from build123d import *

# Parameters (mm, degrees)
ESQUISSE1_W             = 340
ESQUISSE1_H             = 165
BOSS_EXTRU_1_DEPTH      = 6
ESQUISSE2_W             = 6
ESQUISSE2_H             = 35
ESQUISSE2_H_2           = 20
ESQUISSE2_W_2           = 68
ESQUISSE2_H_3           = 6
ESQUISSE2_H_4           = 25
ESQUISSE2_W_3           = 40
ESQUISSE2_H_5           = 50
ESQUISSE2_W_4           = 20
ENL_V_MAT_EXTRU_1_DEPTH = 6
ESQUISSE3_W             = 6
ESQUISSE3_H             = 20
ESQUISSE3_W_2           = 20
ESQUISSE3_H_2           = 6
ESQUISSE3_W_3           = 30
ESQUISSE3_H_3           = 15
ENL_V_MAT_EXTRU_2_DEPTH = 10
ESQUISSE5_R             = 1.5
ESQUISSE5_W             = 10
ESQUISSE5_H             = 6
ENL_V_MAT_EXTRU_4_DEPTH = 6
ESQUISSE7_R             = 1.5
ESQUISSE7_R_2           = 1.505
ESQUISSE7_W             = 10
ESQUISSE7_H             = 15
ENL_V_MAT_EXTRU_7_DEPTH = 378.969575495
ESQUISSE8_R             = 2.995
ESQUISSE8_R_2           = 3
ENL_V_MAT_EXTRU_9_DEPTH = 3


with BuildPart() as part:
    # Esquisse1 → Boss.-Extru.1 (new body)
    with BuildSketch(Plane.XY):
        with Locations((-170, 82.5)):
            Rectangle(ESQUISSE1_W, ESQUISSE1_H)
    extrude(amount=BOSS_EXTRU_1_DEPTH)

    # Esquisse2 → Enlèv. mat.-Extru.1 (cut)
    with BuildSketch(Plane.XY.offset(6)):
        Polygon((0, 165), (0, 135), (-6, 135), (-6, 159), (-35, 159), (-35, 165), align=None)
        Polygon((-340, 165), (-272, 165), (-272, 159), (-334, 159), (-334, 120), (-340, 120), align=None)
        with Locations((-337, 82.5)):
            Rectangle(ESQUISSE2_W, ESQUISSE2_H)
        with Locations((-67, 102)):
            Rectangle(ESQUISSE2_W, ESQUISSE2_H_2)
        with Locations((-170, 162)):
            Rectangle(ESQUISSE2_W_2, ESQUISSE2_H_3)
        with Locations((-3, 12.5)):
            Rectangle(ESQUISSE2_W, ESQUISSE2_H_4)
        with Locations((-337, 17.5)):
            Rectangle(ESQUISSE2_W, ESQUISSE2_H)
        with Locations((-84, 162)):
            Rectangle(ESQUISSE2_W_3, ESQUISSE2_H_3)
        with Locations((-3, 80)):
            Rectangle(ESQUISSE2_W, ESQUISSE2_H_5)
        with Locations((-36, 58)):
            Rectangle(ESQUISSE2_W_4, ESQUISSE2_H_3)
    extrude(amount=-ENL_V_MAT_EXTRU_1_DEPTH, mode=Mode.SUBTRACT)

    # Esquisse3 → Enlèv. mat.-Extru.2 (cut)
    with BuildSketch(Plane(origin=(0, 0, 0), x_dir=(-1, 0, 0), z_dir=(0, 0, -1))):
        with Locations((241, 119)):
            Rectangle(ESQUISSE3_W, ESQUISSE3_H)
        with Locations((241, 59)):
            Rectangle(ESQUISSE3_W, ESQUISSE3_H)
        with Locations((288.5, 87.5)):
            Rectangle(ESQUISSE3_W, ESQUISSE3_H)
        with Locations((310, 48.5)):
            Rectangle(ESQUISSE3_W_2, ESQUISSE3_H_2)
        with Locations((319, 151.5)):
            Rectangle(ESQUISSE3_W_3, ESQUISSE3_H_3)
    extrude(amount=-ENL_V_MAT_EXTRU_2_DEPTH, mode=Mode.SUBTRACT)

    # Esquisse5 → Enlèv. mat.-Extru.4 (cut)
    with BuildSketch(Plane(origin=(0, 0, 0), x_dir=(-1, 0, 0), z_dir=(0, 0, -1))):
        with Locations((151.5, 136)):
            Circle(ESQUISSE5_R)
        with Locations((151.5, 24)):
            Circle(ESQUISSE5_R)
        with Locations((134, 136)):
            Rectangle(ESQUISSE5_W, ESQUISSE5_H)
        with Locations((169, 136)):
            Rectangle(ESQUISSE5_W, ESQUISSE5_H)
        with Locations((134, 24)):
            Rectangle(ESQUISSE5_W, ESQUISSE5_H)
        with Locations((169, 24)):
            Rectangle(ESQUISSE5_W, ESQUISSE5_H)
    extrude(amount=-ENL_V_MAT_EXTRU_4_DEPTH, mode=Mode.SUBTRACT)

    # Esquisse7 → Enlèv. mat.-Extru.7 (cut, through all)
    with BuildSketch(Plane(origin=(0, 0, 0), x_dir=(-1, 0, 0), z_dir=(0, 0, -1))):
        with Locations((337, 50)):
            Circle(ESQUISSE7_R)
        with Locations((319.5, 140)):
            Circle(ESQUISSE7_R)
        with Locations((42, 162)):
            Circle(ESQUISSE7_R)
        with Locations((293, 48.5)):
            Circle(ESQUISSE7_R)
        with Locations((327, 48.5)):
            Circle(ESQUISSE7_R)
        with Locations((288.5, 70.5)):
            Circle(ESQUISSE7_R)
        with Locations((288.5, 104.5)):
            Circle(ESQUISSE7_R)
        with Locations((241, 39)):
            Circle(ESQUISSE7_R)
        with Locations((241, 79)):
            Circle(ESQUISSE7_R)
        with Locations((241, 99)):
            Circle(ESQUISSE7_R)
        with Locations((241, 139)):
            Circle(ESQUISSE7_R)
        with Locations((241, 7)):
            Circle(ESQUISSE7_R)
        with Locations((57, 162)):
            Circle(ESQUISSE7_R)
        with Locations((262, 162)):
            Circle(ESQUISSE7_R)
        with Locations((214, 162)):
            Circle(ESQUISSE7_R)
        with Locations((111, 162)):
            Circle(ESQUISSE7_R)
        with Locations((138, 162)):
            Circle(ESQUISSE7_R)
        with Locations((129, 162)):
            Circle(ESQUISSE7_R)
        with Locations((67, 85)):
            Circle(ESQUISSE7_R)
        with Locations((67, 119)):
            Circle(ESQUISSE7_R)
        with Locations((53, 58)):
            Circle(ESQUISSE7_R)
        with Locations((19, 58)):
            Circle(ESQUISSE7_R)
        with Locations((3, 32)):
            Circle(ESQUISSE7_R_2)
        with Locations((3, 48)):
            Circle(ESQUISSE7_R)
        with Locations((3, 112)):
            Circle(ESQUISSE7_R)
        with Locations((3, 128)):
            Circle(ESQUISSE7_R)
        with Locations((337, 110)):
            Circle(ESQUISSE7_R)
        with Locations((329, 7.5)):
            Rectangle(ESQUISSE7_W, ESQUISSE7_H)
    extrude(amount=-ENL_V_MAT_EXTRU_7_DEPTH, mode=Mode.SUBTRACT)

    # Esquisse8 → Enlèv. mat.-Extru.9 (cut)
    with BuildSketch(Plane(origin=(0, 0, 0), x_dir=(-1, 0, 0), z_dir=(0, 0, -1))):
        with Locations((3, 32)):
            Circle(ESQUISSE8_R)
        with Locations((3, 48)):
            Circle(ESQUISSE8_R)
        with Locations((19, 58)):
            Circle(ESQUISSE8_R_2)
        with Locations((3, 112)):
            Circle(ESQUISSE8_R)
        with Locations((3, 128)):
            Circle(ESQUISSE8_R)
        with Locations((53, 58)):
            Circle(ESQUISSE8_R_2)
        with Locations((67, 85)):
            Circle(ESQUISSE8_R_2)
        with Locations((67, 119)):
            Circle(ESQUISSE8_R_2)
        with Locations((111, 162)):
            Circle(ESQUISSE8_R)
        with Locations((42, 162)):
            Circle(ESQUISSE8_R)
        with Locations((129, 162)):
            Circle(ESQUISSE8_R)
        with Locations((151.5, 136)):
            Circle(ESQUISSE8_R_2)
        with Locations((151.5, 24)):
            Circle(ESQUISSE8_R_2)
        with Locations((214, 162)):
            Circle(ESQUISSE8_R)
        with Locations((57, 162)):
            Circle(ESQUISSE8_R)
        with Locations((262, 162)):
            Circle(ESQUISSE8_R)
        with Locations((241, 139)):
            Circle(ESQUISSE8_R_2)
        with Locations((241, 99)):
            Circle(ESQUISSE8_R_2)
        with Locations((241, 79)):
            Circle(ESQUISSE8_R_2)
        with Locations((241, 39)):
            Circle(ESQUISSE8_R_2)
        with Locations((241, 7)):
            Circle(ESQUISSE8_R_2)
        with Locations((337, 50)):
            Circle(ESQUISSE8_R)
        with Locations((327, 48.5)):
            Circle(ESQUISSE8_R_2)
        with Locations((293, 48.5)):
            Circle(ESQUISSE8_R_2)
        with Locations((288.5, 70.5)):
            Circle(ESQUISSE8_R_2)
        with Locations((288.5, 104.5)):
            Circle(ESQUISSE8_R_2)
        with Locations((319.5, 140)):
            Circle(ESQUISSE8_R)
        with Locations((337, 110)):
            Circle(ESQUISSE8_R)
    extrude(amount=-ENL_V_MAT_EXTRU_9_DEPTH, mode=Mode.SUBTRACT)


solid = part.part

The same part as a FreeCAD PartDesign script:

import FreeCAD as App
import Part
import Sketcher
Q = App.Units.Quantity

doc = App.newDocument("Part")
body = doc.addObject("PartDesign::Body", "Body")

# Sketch on XY plane
sketch1 = doc.addObject("Sketcher::SketchObject", "Sketch")
body.addObject(sketch1)
sketch1.AttachmentSupport = (doc.XY_Plane, [""])
sketch1.MapMode = "FlatFace"
sketch1.addGeometry(Part.LineSegment(App.Vector(-340, 165, 0), App.Vector(-340, 0, 0)), False)
sketch1.addGeometry(Part.LineSegment(App.Vector(-340, 0, 0), App.Vector(0, 0, 0)), False)
sketch1.addGeometry(Part.LineSegment(App.Vector(0, 0, 0), App.Vector(0, 165, 0)), False)
sketch1.addGeometry(Part.LineSegment(App.Vector(0, 165, 0), App.Vector(-340, 165, 0)), False)
sketch1.addConstraint(Sketcher.Constraint("Coincident", 0, 2, 1, 1))
sketch1.addConstraint(Sketcher.Constraint("Coincident", 1, 2, 2, 1))
sketch1.addConstraint(Sketcher.Constraint("Coincident", 2, 2, 3, 1))
sketch1.addConstraint(Sketcher.Constraint("Coincident", 3, 2, 0, 1))
sketch1.addConstraint(Sketcher.Constraint("Vertical", 0))
sketch1.addConstraint(Sketcher.Constraint("Horizontal", 1))
sketch1.addConstraint(Sketcher.Constraint("Vertical", 2))
sketch1.addConstraint(Sketcher.Constraint("Horizontal", 3))
sketch1.addConstraint(Sketcher.Constraint("Coincident", 1, 2, -1, 1))
sketch1.addConstraint(Sketcher.Constraint("DistanceX", 1, 1, 1, 2, Q("340 mm")))
sketch1.addConstraint(Sketcher.Constraint("DistanceY", 0, 2, 0, 1, Q("165 mm")))
pad1 = doc.addObject("PartDesign::Pad", "Pad")
body.addObject(pad1)
pad1.Profile = sketch1
pad1.Length = 6

# Sketch on XY plane
sketch2 = doc.addObject("Sketcher::SketchObject", "Sketch001")
body.addObject(sketch2)
sketch2.AttachmentSupport = (doc.XY_Plane, [""])
sketch2.MapMode = "FlatFace"
sketch2.AttachmentOffset = App.Placement(App.Vector(0, 0, 6), App.Rotation())
sketch2.addGeometry(Part.LineSegment(App.Vector(0, 135, 0), App.Vector(0, 165, 0)), False)
sketch2.addGeometry(Part.LineSegment(App.Vector(0, 165, 0), App.Vector(-35, 165, 0)), False)
sketch2.addGeometry(Part.LineSegment(App.Vector(-35, 165, 0), App.Vector(-35, 159, 0)), False)
sketch2.addGeometry(Part.LineSegment(App.Vector(-35, 159, 0), App.Vector(-6, 159, 0)), False)
sketch2.addGeometry(Part.LineSegment(App.Vector(-6, 159, 0), App.Vector(-6, 135, 0)), False)
sketch2.addGeometry(Part.LineSegment(App.Vector(-6, 135, 0), App.Vector(0, 135, 0)), False)
sketch2.addGeometry(Part.LineSegment(App.Vector(-272, 165, 0), App.Vector(-340, 165, 0)), False)
sketch2.addGeometry(Part.LineSegment(App.Vector(-340, 165, 0), App.Vector(-340, 120, 0)), False)
sketch2.addGeometry(Part.LineSegment(App.Vector(-340, 120, 0), App.Vector(-334, 120, 0)), False)
sketch2.addGeometry(Part.LineSegment(App.Vector(-334, 120, 0), App.Vector(-334, 159, 0)), False)
sketch2.addGeometry(Part.LineSegment(App.Vector(-334, 159, 0), App.Vector(-272, 159, 0)), False)
sketch2.addGeometry(Part.LineSegment(App.Vector(-272, 159, 0), App.Vector(-272, 165, 0)), False)
sketch2.addGeometry(Part.LineSegment(App.Vector(-340, 100, 0), App.Vector(-340, 65, 0)), False)
sketch2.addGeometry(Part.LineSegment(App.Vector(-340, 65, 0), App.Vector(-334, 65, 0)), False)
sketch2.addGeometry(Part.LineSegment(App.Vector(-334, 65, 0), App.Vector(-334, 100, 0)), False)
sketch2.addGeometry(Part.LineSegment(App.Vector(-334, 100, 0), App.Vector(-340, 100, 0)), False)
sketch2.addGeometry(Part.LineSegment(App.Vector(-70, 112, 0), App.Vector(-70, 92, 0)), False)
sketch2.addGeometry(Part.LineSegment(App.Vector(-70, 92, 0), App.Vector(-64, 92, 0)), False)
sketch2.addGeometry(Part.LineSegment(App.Vector(-64, 92, 0), App.Vector(-64, 112, 0)), False)
sketch2.addGeometry(Part.LineSegment(App.Vector(-64, 112, 0), App.Vector(-70, 112, 0)), False)
sketch2.addGeometry(Part.LineSegment(App.Vector(-204, 165, 0), App.Vector(-204, 159, 0)), False)
sketch2.addGeometry(Part.LineSegment(App.Vector(-204, 159, 0), App.Vector(-136, 159, 0)), False)
sketch2.addGeometry(Part.LineSegment(App.Vector(-136, 159, 0), App.Vector(-136, 165, 0)), False)
sketch2.addGeometry(Part.LineSegment(App.Vector(-136, 165, 0), App.Vector(-204, 165, 0)), False)
sketch2.addGeometry(Part.LineSegment(App.Vector(-6, 25, 0), App.Vector(-6, 0, 0)), False)
sketch2.addGeometry(Part.LineSegment(App.Vector(-6, 0, 0), App.Vector(0, 0, 0)), False)
sketch2.addGeometry(Part.LineSegment(App.Vector(0, 0, 0), App.Vector(0, 25, 0)), False)
sketch2.addGeometry(Part.LineSegment(App.Vector(0, 25, 0), App.Vector(-6, 25, 0)), False)
sketch2.addGeometry(Part.LineSegment(App.Vector(-340, 35, 0), App.Vector(-340, 0, 0)), False)
sketch2.addGeometry(Part.LineSegment(App.Vector(-340, 0, 0), App.Vector(-334, 0, 0)), False)
sketch2.addGeometry(Part.LineSegment(App.Vector(-334, 0, 0), App.Vector(-334, 35, 0)), False)
sketch2.addGeometry(Part.LineSegment(App.Vector(-334, 35, 0), App.Vector(-340, 35, 0)), False)
sketch2.addGeometry(Part.LineSegment(App.Vector(-104, 165, 0), App.Vector(-104, 159, 0)), False)
sketch2.addGeometry(Part.LineSegment(App.Vector(-104, 159, 0), App.Vector(-64, 159, 0)), False)
sketch2.addGeometry(Part.LineSegment(App.Vector(-64, 159, 0), App.Vector(-64, 165, 0)), False)
sketch2.addGeometry(Part.LineSegment(App.Vector(-64, 165, 0), App.Vector(-104, 165, 0)), False)
sketch2.addGeometry(Part.LineSegment(App.Vector(-6, 105, 0), App.Vector(-6, 55, 0)), False)
sketch2.addGeometry(Part.LineSegment(App.Vector(-6, 55, 0), App.Vector(0, 55, 0)), False)
sketch2.addGeometry(Part.LineSegment(App.Vector(0, 55, 0), App.Vector(0, 105, 0)), False)
sketch2.addGeometry(Part.LineSegment(App.Vector(0, 105, 0), App.Vector(-6, 105, 0)), False)
sketch2.addGeometry(Part.LineSegment(App.Vector(-46, 61, 0), App.Vector(-46, 55, 0)), False)
sketch2.addGeometry(Part.LineSegment(App.Vector(-46, 55, 0), App.Vector(-26, 55, 0)), False)
sketch2.addGeometry(Part.LineSegment(App.Vector(-26, 55, 0), App.Vector(-26, 61, 0)), False)
sketch2.addGeometry(Part.LineSegment(App.Vector(-26, 61, 0), App.Vector(-46, 61, 0)), False)
sketch2.addConstraint(Sketcher.Constraint("Coincident", 0, 2, 1, 1))
sketch2.addConstraint(Sketcher.Constraint("Coincident", 1, 2, 2, 1))
sketch2.addConstraint(Sketcher.Constraint("Coincident", 2, 2, 3, 1))
sketch2.addConstraint(Sketcher.Constraint("Coincident", 3, 2, 4, 1))
sketch2.addConstraint(Sketcher.Constraint("Coincident", 4, 2, 5, 1))
sketch2.addConstraint(Sketcher.Constraint("Coincident", 5, 2, 0, 1))
sketch2.addConstraint(Sketcher.Constraint("Coincident", 6, 2, 7, 1))
sketch2.addConstraint(Sketcher.Constraint("Coincident", 7, 2, 8, 1))
sketch2.addConstraint(Sketcher.Constraint("Coincident", 8, 2, 9, 1))
sketch2.addConstraint(Sketcher.Constraint("Coincident", 9, 2, 10, 1))
sketch2.addConstraint(Sketcher.Constraint("Coincident", 10, 2, 11, 1))
sketch2.addConstraint(Sketcher.Constraint("Coincident", 11, 2, 6, 1))
sketch2.addConstraint(Sketcher.Constraint("Coincident", 12, 2, 13, 1))
sketch2.addConstraint(Sketcher.Constraint("Coincident", 13, 2, 14, 1))
sketch2.addConstraint(Sketcher.Constraint("Coincident", 14, 2, 15, 1))
sketch2.addConstraint(Sketcher.Constraint("Coincident", 15, 2, 12, 1))
sketch2.addConstraint(Sketcher.Constraint("Coincident", 16, 2, 17, 1))
sketch2.addConstraint(Sketcher.Constraint("Coincident", 17, 2, 18, 1))
sketch2.addConstraint(Sketcher.Constraint("Coincident", 18, 2, 19, 1))
sketch2.addConstraint(Sketcher.Constraint("Coincident", 19, 2, 16, 1))
sketch2.addConstraint(Sketcher.Constraint("Coincident", 20, 2, 21, 1))
sketch2.addConstraint(Sketcher.Constraint("Coincident", 21, 2, 22, 1))
sketch2.addConstraint(Sketcher.Constraint("Coincident", 22, 2, 23, 1))
sketch2.addConstraint(Sketcher.Constraint("Coincident", 23, 2, 20, 1))
sketch2.addConstraint(Sketcher.Constraint("Coincident", 24, 2, 25, 1))
sketch2.addConstraint(Sketcher.Constraint("Coincident", 25, 2, 26, 1))
sketch2.addConstraint(Sketcher.Constraint("Coincident", 26, 2, 27, 1))
sketch2.addConstraint(Sketcher.Constraint("Coincident", 27, 2, 24, 1))
sketch2.addConstraint(Sketcher.Constraint("Coincident", 28, 2, 29, 1))
sketch2.addConstraint(Sketcher.Constraint("Coincident", 29, 2, 30, 1))
sketch2.addConstraint(Sketcher.Constraint("Coincident", 30, 2, 31, 1))
sketch2.addConstraint(Sketcher.Constraint("Coincident", 31, 2, 28, 1))
sketch2.addConstraint(Sketcher.Constraint("Coincident", 32, 2, 33, 1))
sketch2.addConstraint(Sketcher.Constraint("Coincident", 33, 2, 34, 1))
sketch2.addConstraint(Sketcher.Constraint("Coincident", 34, 2, 35, 1))
sketch2.addConstraint(Sketcher.Constraint("Coincident", 35, 2, 32, 1))
sketch2.addConstraint(Sketcher.Constraint("Coincident", 36, 2, 37, 1))
sketch2.addConstraint(Sketcher.Constraint("Coincident", 37, 2, 38, 1))
sketch2.addConstraint(Sketcher.Constraint("Coincident", 38, 2, 39, 1))
sketch2.addConstraint(Sketcher.Constraint("Coincident", 39, 2, 36, 1))
sketch2.addConstraint(Sketcher.Constraint("Coincident", 40, 2, 41, 1))
sketch2.addConstraint(Sketcher.Constraint("Coincident", 41, 2, 42, 1))
sketch2.addConstraint(Sketcher.Constraint("Coincident", 42, 2, 43, 1))
sketch2.addConstraint(Sketcher.Constraint("Coincident", 43, 2, 40, 1))
sketch2.addConstraint(Sketcher.Constraint("Vertical", 0))
sketch2.addConstraint(Sketcher.Constraint("Horizontal", 1))
sketch2.addConstraint(Sketcher.Constraint("Vertical", 2))
sketch2.addConstraint(Sketcher.Constraint("Horizontal", 3))
sketch2.addConstraint(Sketcher.Constraint("Vertical", 4))
sketch2.addConstraint(Sketcher.Constraint("Horizontal", 5))
sketch2.addConstraint(Sketcher.Constraint("Horizontal", 6))
sketch2.addConstraint(Sketcher.Constraint("Vertical", 7))
sketch2.addConstraint(Sketcher.Constraint("Horizontal", 8))
sketch2.addConstraint(Sketcher.Constraint("Vertical", 9))
sketch2.addConstraint(Sketcher.Constraint("Horizontal", 10))
sketch2.addConstraint(Sketcher.Constraint("Vertical", 11))
sketch2.addConstraint(Sketcher.Constraint("Vertical", 12))
sketch2.addConstraint(Sketcher.Constraint("Horizontal", 13))
sketch2.addConstraint(Sketcher.Constraint("Vertical", 14))
sketch2.addConstraint(Sketcher.Constraint("Horizontal", 15))
sketch2.addConstraint(Sketcher.Constraint("Vertical", 16))
sketch2.addConstraint(Sketcher.Constraint("Horizontal", 17))
sketch2.addConstraint(Sketcher.Constraint("Vertical", 18))
sketch2.addConstraint(Sketcher.Constraint("Horizontal", 19))
sketch2.addConstraint(Sketcher.Constraint("Vertical", 20))
sketch2.addConstraint(Sketcher.Constraint("Horizontal", 21))
sketch2.addConstraint(Sketcher.Constraint("Vertical", 22))
sketch2.addConstraint(Sketcher.Constraint("Horizontal", 23))
sketch2.addConstraint(Sketcher.Constraint("Vertical", 24))
sketch2.addConstraint(Sketcher.Constraint("Horizontal", 25))
sketch2.addConstraint(Sketcher.Constraint("Vertical", 26))
sketch2.addConstraint(Sketcher.Constraint("Horizontal", 27))
sketch2.addConstraint(Sketcher.Constraint("Vertical", 28))
sketch2.addConstraint(Sketcher.Constraint("Horizontal", 29))
sketch2.addConstraint(Sketcher.Constraint("Vertical", 30))
sketch2.addConstraint(Sketcher.Constraint("Horizontal", 31))
sketch2.addConstraint(Sketcher.Constraint("Vertical", 32))
sketch2.addConstraint(Sketcher.Constraint("Horizontal", 33))
sketch2.addConstraint(Sketcher.Constraint("Vertical", 34))
sketch2.addConstraint(Sketcher.Constraint("Horizontal", 35))
sketch2.addConstraint(Sketcher.Constraint("Vertical", 36))
sketch2.addConstraint(Sketcher.Constraint("Horizontal", 37))
sketch2.addConstraint(Sketcher.Constraint("Vertical", 38))
sketch2.addConstraint(Sketcher.Constraint("Horizontal", 39))
sketch2.addConstraint(Sketcher.Constraint("Vertical", 40))
sketch2.addConstraint(Sketcher.Constraint("Horizontal", 41))
sketch2.addConstraint(Sketcher.Constraint("Vertical", 42))
sketch2.addConstraint(Sketcher.Constraint("Horizontal", 43))
sketch2.addConstraint(Sketcher.Constraint("Coincident", 25, 2, -1, 1))
sketch2.addConstraint(Sketcher.Constraint("PointOnObject", 0, 2, -2))
sketch2.addConstraint(Sketcher.Constraint("PointOnObject", 28, 2, -1))
sketch2.addConstraint(Sketcher.Constraint("PointOnObject", 37, 2, -2))
sketch2.addConstraint(Sketcher.Constraint("Horizontal", 1, 2, 6, 2))
sketch2.addConstraint(Sketcher.Constraint("Horizontal", 3, 2, 9, 2))
sketch2.addConstraint(Sketcher.Constraint("Horizontal", 10, 2, 20, 2))
sketch2.addConstraint(Sketcher.Constraint("Horizontal", 11, 2, 22, 2))
sketch2.addConstraint(Sketcher.Constraint("Horizontal", 21, 2, 32, 2))
sketch2.addConstraint(Sketcher.Constraint("Horizontal", 23, 2, 34, 2))
sketch2.addConstraint(Sketcher.Constraint("Horizontal", 37, 2, 40, 2))
sketch2.addConstraint(Sketcher.Constraint("Vertical", 7, 2, 12, 2))
sketch2.addConstraint(Sketcher.Constraint("Vertical", 9, 2, 13, 2))
sketch2.addConstraint(Sketcher.Constraint("Vertical", 4, 2, 24, 2))
sketch2.addConstraint(Sketcher.Constraint("Vertical", 15, 2, 28, 2))
sketch2.addConstraint(Sketcher.Constraint("Vertical", 14, 2, 29, 2))
sketch2.addConstraint(Sketcher.Constraint("Vertical", 18, 2, 33, 2))
sketch2.addConstraint(Sketcher.Constraint("Vertical", 27, 2, 36, 2))
sketch2.addConstraint(Sketcher.Constraint("Equal", 5, 8))
sketch2.addConstraint(Sketcher.Constraint("Equal", 15, 17))
sketch2.addConstraint(Sketcher.Constraint("Equal", 6, 21))
sketch2.addConstraint(Sketcher.Constraint("Equal", 39, 2))
sketch2.addConstraint(Sketcher.Constraint("Equal", 1, 12))
sketch2.addConstraint(Sketcher.Constraint("Equal", 43, 16))
sketch2.addConstraint(Sketcher.Constraint("Equal", 14, 28))
sketch2.addConstraint(Sketcher.Constraint("Equal", 34, 40))
sketch2.addConstraint(Sketcher.Constraint("DistanceX", 1, 2, 1, 1, Q("35 mm")))
sketch2.addConstraint(Sketcher.Constraint("DistanceX", 3, 1, 3, 2, Q("29 mm")))
sketch2.addConstraint(Sketcher.Constraint("DistanceX", 6, 2, 6, 1, Q("68 mm")))
sketch2.addConstraint(Sketcher.Constraint("DistanceX", 33, 1, 33, 2, Q("40 mm")))
sketch2.addConstraint(Sketcher.Constraint("DistanceX", 41, 1, 41, 2, Q("20 mm")))
sketch2.addConstraint(Sketcher.Constraint("DistanceY", 0, 1, 0, 2, Q("30 mm")))
sketch2.addConstraint(Sketcher.Constraint("DistanceY", 7, 2, 7, 1, Q("45 mm")))
sketch2.addConstraint(Sketcher.Constraint("DistanceY", 24, 2, 24, 1, Q("25 mm")))
sketch2.addConstraint(Sketcher.Constraint("DistanceY", 36, 2, 36, 1, Q("50 mm")))
sketch2.addConstraint(Sketcher.Constraint("DistanceY", -1, 1, 0, 2, Q("165 mm")))
sketch2.addConstraint(Sketcher.Constraint("DistanceX", 6, 2, -1, 1, Q("340 mm")))
sketch2.addConstraint(Sketcher.Constraint("DistanceY", -1, 1, 12, 2, Q("65 mm")))
sketch2.addConstraint(Sketcher.Constraint("DistanceX", 16, 2, -1, 1, Q("70 mm")))
sketch2.addConstraint(Sketcher.Constraint("DistanceY", -1, 1, 16, 2, Q("92 mm")))
sketch2.addConstraint(Sketcher.Constraint("DistanceX", 20, 2, -1, 1, Q("204 mm")))
sketch2.addConstraint(Sketcher.Constraint("DistanceY", -1, 1, 36, 2, Q("55 mm")))
sketch2.addConstraint(Sketcher.Constraint("DistanceX", 40, 2, -1, 1, Q("46 mm")))
pocket1 = doc.addObject("PartDesign::Pocket", "Pocket")
body.addObject(pocket1)
pocket1.Profile = sketch2
pocket1.Length = 6

# Sketch on XY plane
sketch3 = doc.addObject("Sketcher::SketchObject", "Sketch002")
body.addObject(sketch3)
sketch3.AttachmentSupport = (doc.XY_Plane, [""])
sketch3.MapMode = "FlatFace"
sketch3.addGeometry(Part.LineSegment(App.Vector(-238, 129, 0), App.Vector(-238, 109, 0)), False)
sketch3.addGeometry(Part.LineSegment(App.Vector(-238, 109, 0), App.Vector(-244, 109, 0)), False)
sketch3.addGeometry(Part.LineSegment(App.Vector(-244, 109, 0), App.Vector(-244, 129, 0)), False)
sketch3.addGeometry(Part.LineSegment(App.Vector(-244, 129, 0), App.Vector(-238, 129, 0)), False)
sketch3.addGeometry(Part.LineSegment(App.Vector(-238, 69, 0), App.Vector(-238, 49, 0)), False)
sketch3.addGeometry(Part.LineSegment(App.Vector(-238, 49, 0), App.Vector(-244, 49, 0)), False)
sketch3.addGeometry(Part.LineSegment(App.Vector(-244, 49, 0), App.Vector(-244, 69, 0)), False)
sketch3.addGeometry(Part.LineSegment(App.Vector(-244, 69, 0), App.Vector(-238, 69, 0)), False)
sketch3.addGeometry(Part.LineSegment(App.Vector(-286, 98, 0), App.Vector(-286, 78, 0)), False)
sketch3.addGeometry(Part.LineSegment(App.Vector(-286, 78, 0), App.Vector(-292, 78, 0)), False)
sketch3.addGeometry(Part.LineSegment(App.Vector(-292, 78, 0), App.Vector(-292, 98, 0)), False)
sketch3.addGeometry(Part.LineSegment(App.Vector(-292, 98, 0), App.Vector(-286, 98, 0)), False)
sketch3.addGeometry(Part.LineSegment(App.Vector(-300, 52, 0), App.Vector(-300, 46, 0)), False)
sketch3.addGeometry(Part.LineSegment(App.Vector(-300, 46, 0), App.Vector(-320, 46, 0)), False)
sketch3.addGeometry(Part.LineSegment(App.Vector(-320, 46, 0), App.Vector(-320, 52, 0)), False)
sketch3.addGeometry(Part.LineSegment(App.Vector(-320, 52, 0), App.Vector(-300, 52, 0)), False)
sketch3.addGeometry(Part.LineSegment(App.Vector(-304, 159, 0), App.Vector(-304, 144, 0)), False)
sketch3.addGeometry(Part.LineSegment(App.Vector(-304, 144, 0), App.Vector(-334, 144, 0)), False)
sketch3.addGeometry(Part.LineSegment(App.Vector(-334, 144, 0), App.Vector(-334, 159, 0)), False)
sketch3.addGeometry(Part.LineSegment(App.Vector(-334, 159, 0), App.Vector(-304, 159, 0)), False)
sketch3.addConstraint(Sketcher.Constraint("Coincident", 0, 2, 1, 1))
sketch3.addConstraint(Sketcher.Constraint("Coincident", 1, 2, 2, 1))
sketch3.addConstraint(Sketcher.Constraint("Coincident", 2, 2, 3, 1))
sketch3.addConstraint(Sketcher.Constraint("Coincident", 3, 2, 0, 1))
sketch3.addConstraint(Sketcher.Constraint("Coincident", 4, 2, 5, 1))
sketch3.addConstraint(Sketcher.Constraint("Coincident", 5, 2, 6, 1))
sketch3.addConstraint(Sketcher.Constraint("Coincident", 6, 2, 7, 1))
sketch3.addConstraint(Sketcher.Constraint("Coincident", 7, 2, 4, 1))
sketch3.addConstraint(Sketcher.Constraint("Coincident", 8, 2, 9, 1))
sketch3.addConstraint(Sketcher.Constraint("Coincident", 9, 2, 10, 1))
sketch3.addConstraint(Sketcher.Constraint("Coincident", 10, 2, 11, 1))
sketch3.addConstraint(Sketcher.Constraint("Coincident", 11, 2, 8, 1))
sketch3.addConstraint(Sketcher.Constraint("Coincident", 12, 2, 13, 1))
sketch3.addConstraint(Sketcher.Constraint("Coincident", 13, 2, 14, 1))
sketch3.addConstraint(Sketcher.Constraint("Coincident", 14, 2, 15, 1))
sketch3.addConstraint(Sketcher.Constraint("Coincident", 15, 2, 12, 1))
sketch3.addConstraint(Sketcher.Constraint("Coincident", 16, 2, 17, 1))
sketch3.addConstraint(Sketcher.Constraint("Coincident", 17, 2, 18, 1))
sketch3.addConstraint(Sketcher.Constraint("Coincident", 18, 2, 19, 1))
sketch3.addConstraint(Sketcher.Constraint("Coincident", 19, 2, 16, 1))
sketch3.addConstraint(Sketcher.Constraint("Vertical", 0))
sketch3.addConstraint(Sketcher.Constraint("Horizontal", 1))
sketch3.addConstraint(Sketcher.Constraint("Vertical", 2))
sketch3.addConstraint(Sketcher.Constraint("Horizontal", 3))
sketch3.addConstraint(Sketcher.Constraint("Vertical", 4))
sketch3.addConstraint(Sketcher.Constraint("Horizontal", 5))
sketch3.addConstraint(Sketcher.Constraint("Vertical", 6))
sketch3.addConstraint(Sketcher.Constraint("Horizontal", 7))
sketch3.addConstraint(Sketcher.Constraint("Vertical", 8))
sketch3.addConstraint(Sketcher.Constraint("Horizontal", 9))
sketch3.addConstraint(Sketcher.Constraint("Vertical", 10))
sketch3.addConstraint(Sketcher.Constraint("Horizontal", 11))
sketch3.addConstraint(Sketcher.Constraint("Vertical", 12))
sketch3.addConstraint(Sketcher.Constraint("Horizontal", 13))
sketch3.addConstraint(Sketcher.Constraint("Vertical", 14))
sketch3.addConstraint(Sketcher.Constraint("Horizontal", 15))
sketch3.addConstraint(Sketcher.Constraint("Vertical", 16))
sketch3.addConstraint(Sketcher.Constraint("Horizontal", 17))
sketch3.addConstraint(Sketcher.Constraint("Vertical", 18))
sketch3.addConstraint(Sketcher.Constraint("Horizontal", 19))
sketch3.addConstraint(Sketcher.Constraint("Vertical", 3, 2, 4, 2))
sketch3.addConstraint(Sketcher.Constraint("Vertical", 2, 2, 5, 2))
sketch3.addConstraint(Sketcher.Constraint("Equal", 7, 9))
sketch3.addConstraint(Sketcher.Constraint("Equal", 15, 0))
sketch3.addConstraint(Sketcher.Constraint("Equal", 2, 4))
sketch3.addConstraint(Sketcher.Constraint("Equal", 6, 8))
sketch3.addConstraint(Sketcher.Constraint("Equal", 11, 12))
sketch3.addConstraint(Sketcher.Constraint("DistanceX", 1, 2, 1, 1, Q("6 mm")))
sketch3.addConstraint(Sketcher.Constraint("DistanceX", 13, 2, 13, 1, Q("20 mm")))
sketch3.addConstraint(Sketcher.Constraint("DistanceX", 17, 2, 17, 1, Q("30 mm")))
sketch3.addConstraint(Sketcher.Constraint("DistanceY", 16, 2, 16, 1, Q("15 mm")))
sketch3.addConstraint(Sketcher.Constraint("DistanceX", 0, 2, -1, 1, Q("238 mm")))
sketch3.addConstraint(Sketcher.Constraint("DistanceY", -1, 1, 0, 2, Q("109 mm")))
sketch3.addConstraint(Sketcher.Constraint("DistanceY", -1, 1, 4, 2, Q("49 mm")))
sketch3.addConstraint(Sketcher.Constraint("DistanceX", 12, 2, -1, 1, Q("300 mm")))
sketch3.addConstraint(Sketcher.Constraint("DistanceX", 16, 2, -1, 1, Q("304 mm")))
sketch3.addConstraint(Sketcher.Constraint("DistanceY", -1, 1, 16, 2, Q("144 mm")))
sketch3.addConstraint(Sketcher.Constraint("DistanceY", 12, 2, 9, 2, Q("32 mm")))
sketch3.addConstraint(Sketcher.Constraint("DistanceX", 8, 2, -1, 1, Q("285.5 mm")))
sketch3.addConstraint(Sketcher.Constraint("DistanceY", -1, 1, 8, 2, Q("77.5 mm")))
pocket2 = doc.addObject("PartDesign::Pocket", "Pocket001")
body.addObject(pocket2)
pocket2.Profile = sketch3
pocket2.Length = 10
pocket2.Reversed = True

# Sketch on XY plane
sketch4 = doc.addObject("Sketcher::SketchObject", "Sketch003")
body.addObject(sketch4)
sketch4.AttachmentSupport = (doc.XY_Plane, [""])
sketch4.MapMode = "FlatFace"
sketch4.addGeometry(Part.Circle(App.Vector(-151.5, 136, 0), App.Vector(0, 0, 1), 1.5), False)
sketch4.addGeometry(Part.Circle(App.Vector(-151.5, 24, 0), App.Vector(0, 0, 1), 1.5), False)
sketch4.addGeometry(Part.LineSegment(App.Vector(-129, 139, 0), App.Vector(-129, 133, 0)), False)
sketch4.addGeometry(Part.LineSegment(App.Vector(-129, 133, 0), App.Vector(-139, 133, 0)), False)
sketch4.addGeometry(Part.LineSegment(App.Vector(-139, 133, 0), App.Vector(-139, 139, 0)), False)
sketch4.addGeometry(Part.LineSegment(App.Vector(-139, 139, 0), App.Vector(-129, 139, 0)), False)
sketch4.addGeometry(Part.LineSegment(App.Vector(-164, 139, 0), App.Vector(-164, 133, 0)), False)
sketch4.addGeometry(Part.LineSegment(App.Vector(-164, 133, 0), App.Vector(-174, 133, 0)), False)
sketch4.addGeometry(Part.LineSegment(App.Vector(-174, 133, 0), App.Vector(-174, 139, 0)), False)
sketch4.addGeometry(Part.LineSegment(App.Vector(-174, 139, 0), App.Vector(-164, 139, 0)), False)
sketch4.addGeometry(Part.LineSegment(App.Vector(-129, 27, 0), App.Vector(-129, 21, 0)), False)
sketch4.addGeometry(Part.LineSegment(App.Vector(-129, 21, 0), App.Vector(-139, 21, 0)), False)
sketch4.addGeometry(Part.LineSegment(App.Vector(-139, 21, 0), App.Vector(-139, 27, 0)), False)
sketch4.addGeometry(Part.LineSegment(App.Vector(-139, 27, 0), App.Vector(-129, 27, 0)), False)
sketch4.addGeometry(Part.LineSegment(App.Vector(-164, 27, 0), App.Vector(-164, 21, 0)), False)
sketch4.addGeometry(Part.LineSegment(App.Vector(-164, 21, 0), App.Vector(-174, 21, 0)), False)
sketch4.addGeometry(Part.LineSegment(App.Vector(-174, 21, 0), App.Vector(-174, 27, 0)), False)
sketch4.addGeometry(Part.LineSegment(App.Vector(-174, 27, 0), App.Vector(-164, 27, 0)), False)
sketch4.addConstraint(Sketcher.Constraint("Coincident", 2, 2, 3, 1))
sketch4.addConstraint(Sketcher.Constraint("Coincident", 3, 2, 4, 1))
sketch4.addConstraint(Sketcher.Constraint("Coincident", 4, 2, 5, 1))
sketch4.addConstraint(Sketcher.Constraint("Coincident", 5, 2, 2, 1))
sketch4.addConstraint(Sketcher.Constraint("Coincident", 6, 2, 7, 1))
sketch4.addConstraint(Sketcher.Constraint("Coincident", 7, 2, 8, 1))
sketch4.addConstraint(Sketcher.Constraint("Coincident", 8, 2, 9, 1))
sketch4.addConstraint(Sketcher.Constraint("Coincident", 9, 2, 6, 1))
sketch4.addConstraint(Sketcher.Constraint("Coincident", 10, 2, 11, 1))
sketch4.addConstraint(Sketcher.Constraint("Coincident", 11, 2, 12, 1))
sketch4.addConstraint(Sketcher.Constraint("Coincident", 12, 2, 13, 1))
sketch4.addConstraint(Sketcher.Constraint("Coincident", 13, 2, 10, 1))
sketch4.addConstraint(Sketcher.Constraint("Coincident", 14, 2, 15, 1))
sketch4.addConstraint(Sketcher.Constraint("Coincident", 15, 2, 16, 1))
sketch4.addConstraint(Sketcher.Constraint("Coincident", 16, 2, 17, 1))
sketch4.addConstraint(Sketcher.Constraint("Coincident", 17, 2, 14, 1))
sketch4.addConstraint(Sketcher.Constraint("Vertical", 2))
sketch4.addConstraint(Sketcher.Constraint("Horizontal", 3))
sketch4.addConstraint(Sketcher.Constraint("Vertical", 4))
sketch4.addConstraint(Sketcher.Constraint("Horizontal", 5))
sketch4.addConstraint(Sketcher.Constraint("Vertical", 6))
sketch4.addConstraint(Sketcher.Constraint("Horizontal", 7))
sketch4.addConstraint(Sketcher.Constraint("Vertical", 8))
sketch4.addConstraint(Sketcher.Constraint("Horizontal", 9))
sketch4.addConstraint(Sketcher.Constraint("Vertical", 10))
sketch4.addConstraint(Sketcher.Constraint("Horizontal", 11))
sketch4.addConstraint(Sketcher.Constraint("Vertical", 12))
sketch4.addConstraint(Sketcher.Constraint("Horizontal", 13))
sketch4.addConstraint(Sketcher.Constraint("Vertical", 14))
sketch4.addConstraint(Sketcher.Constraint("Horizontal", 15))
sketch4.addConstraint(Sketcher.Constraint("Vertical", 16))
sketch4.addConstraint(Sketcher.Constraint("Horizontal", 17))
sketch4.addConstraint(Sketcher.Constraint("Equal", 0, 1))
sketch4.addConstraint(Sketcher.Constraint("Horizontal", 3, 2, 6, 2))
sketch4.addConstraint(Sketcher.Constraint("Horizontal", 5, 2, 8, 2))
sketch4.addConstraint(Sketcher.Constraint("Horizontal", 11, 2, 14, 2))
sketch4.addConstraint(Sketcher.Constraint("Horizontal", 13, 2, 16, 2))
sketch4.addConstraint(Sketcher.Constraint("Vertical", 0, 3, 1, 3))
sketch4.addConstraint(Sketcher.Constraint("Vertical", 5, 2, 10, 2))
sketch4.addConstraint(Sketcher.Constraint("Vertical", 4, 2, 11, 2))
sketch4.addConstraint(Sketcher.Constraint("Vertical", 9, 2, 14, 2))
sketch4.addConstraint(Sketcher.Constraint("Vertical", 8, 2, 15, 2))
sketch4.addConstraint(Sketcher.Constraint("Equal", 5, 7))
sketch4.addConstraint(Sketcher.Constraint("Equal", 8, 10))
sketch4.addConstraint(Sketcher.Constraint("Diameter", 0, Q("3 mm")))
sketch4.addConstraint(Sketcher.Constraint("DistanceX", 3, 2, 3, 1, Q("10 mm")))
sketch4.addConstraint(Sketcher.Constraint("DistanceY", 2, 2, 2, 1, Q("6 mm")))
sketch4.addConstraint(Sketcher.Constraint("DistanceY", -1, 1, 0, 3, Q("136 mm")))
sketch4.addConstraint(Sketcher.Constraint("DistanceY", -1, 1, 1, 3, Q("24 mm")))
sketch4.addConstraint(Sketcher.Constraint("DistanceX", 2, 2, -1, 1, Q("129 mm")))
sketch4.addConstraint(Sketcher.Constraint("DistanceY", -1, 1, 2, 2, Q("133 mm")))
sketch4.addConstraint(Sketcher.Constraint("DistanceX", 6, 2, -1, 1, Q("164 mm")))
sketch4.addConstraint(Sketcher.Constraint("DistanceY", -1, 1, 10, 2, Q("21 mm")))
sketch4.addConstraint(Sketcher.Constraint("DistanceX", 0, 3, -1, 1, Q("151.5 mm")))
pocket3 = doc.addObject("PartDesign::Pocket", "Pocket002")
body.addObject(pocket3)
pocket3.Profile = sketch4
pocket3.Length = 6
pocket3.Reversed = True

# Sketch on XY plane
sketch5 = doc.addObject("Sketcher::SketchObject", "Sketch004")
body.addObject(sketch5)
sketch5.AttachmentSupport = (doc.XY_Plane, [""])
sketch5.MapMode = "FlatFace"
sketch5.addGeometry(Part.Circle(App.Vector(-337, 50, 0), App.Vector(0, 0, 1), 1.5), False)
sketch5.addGeometry(Part.Circle(App.Vector(-319.5, 140, 0), App.Vector(0, 0, 1), 1.5), False)
sketch5.addGeometry(Part.Circle(App.Vector(-42, 162, 0), App.Vector(0, 0, 1), 1.5), False)
sketch5.addGeometry(Part.Circle(App.Vector(-293, 48.5, 0), App.Vector(0, 0, 1), 1.5), False)
sketch5.addGeometry(Part.Circle(App.Vector(-327, 48.5, 0), App.Vector(0, 0, 1), 1.5), False)
sketch5.addGeometry(Part.Circle(App.Vector(-288.5, 70.5, 0), App.Vector(0, 0, 1), 1.5), False)
sketch5.addGeometry(Part.Circle(App.Vector(-288.5, 104.5, 0), App.Vector(0, 0, 1), 1.5), False)
sketch5.addGeometry(Part.Circle(App.Vector(-241, 39, 0), App.Vector(0, 0, 1), 1.5), False)
sketch5.addGeometry(Part.Circle(App.Vector(-241, 79, 0), App.Vector(0, 0, 1), 1.5), False)
sketch5.addGeometry(Part.Circle(App.Vector(-241, 99, 0), App.Vector(0, 0, 1), 1.5), False)
sketch5.addGeometry(Part.Circle(App.Vector(-241, 139, 0), App.Vector(0, 0, 1), 1.5), False)
sketch5.addGeometry(Part.Circle(App.Vector(-241, 7, 0), App.Vector(0, 0, 1), 1.5), False)
sketch5.addGeometry(Part.Circle(App.Vector(-57, 162, 0), App.Vector(0, 0, 1), 1.5), False)
sketch5.addGeometry(Part.Circle(App.Vector(-262, 162, 0), App.Vector(0, 0, 1), 1.5), False)
sketch5.addGeometry(Part.Circle(App.Vector(-214, 162, 0), App.Vector(0, 0, 1), 1.5), False)
sketch5.addGeometry(Part.Circle(App.Vector(-111, 162, 0), App.Vector(0, 0, 1), 1.5), False)
sketch5.addGeometry(Part.Circle(App.Vector(-138, 162, 0), App.Vector(0, 0, 1), 1.5), False)
sketch5.addGeometry(Part.Circle(App.Vector(-129, 162, 0), App.Vector(0, 0, 1), 1.5), False)
sketch5.addGeometry(Part.Circle(App.Vector(-67, 85, 0), App.Vector(0, 0, 1), 1.5), False)
sketch5.addGeometry(Part.Circle(App.Vector(-67, 119, 0), App.Vector(0, 0, 1), 1.5), False)
sketch5.addGeometry(Part.Circle(App.Vector(-53, 58, 0), App.Vector(0, 0, 1), 1.5), False)
sketch5.addGeometry(Part.Circle(App.Vector(-19, 58, 0), App.Vector(0, 0, 1), 1.5), False)
sketch5.addGeometry(Part.Circle(App.Vector(-3, 32, 0), App.Vector(0, 0, 1), 1.5), False)
sketch5.addGeometry(Part.Circle(App.Vector(-3, 48, 0), App.Vector(0, 0, 1), 1.5), False)
sketch5.addGeometry(Part.Circle(App.Vector(-3, 112, 0), App.Vector(0, 0, 1), 1.5), False)
sketch5.addGeometry(Part.Circle(App.Vector(-3, 128, 0), App.Vector(0, 0, 1), 1.5), False)
sketch5.addGeometry(Part.Circle(App.Vector(-337, 110, 0), App.Vector(0, 0, 1), 1.5), False)
sketch5.addGeometry(Part.LineSegment(App.Vector(-324, 15, 0), App.Vector(-324, 0, 0)), False)
sketch5.addGeometry(Part.LineSegment(App.Vector(-324, 0, 0), App.Vector(-334, 0, 0)), False)
sketch5.addGeometry(Part.LineSegment(App.Vector(-334, 0, 0), App.Vector(-334, 15, 0)), False)
sketch5.addGeometry(Part.LineSegment(App.Vector(-334, 15, 0), App.Vector(-324, 15, 0)), False)
sketch5.addConstraint(Sketcher.Constraint("Coincident", 27, 2, 28, 1))
sketch5.addConstraint(Sketcher.Constraint("Coincident", 28, 2, 29, 1))
sketch5.addConstraint(Sketcher.Constraint("Coincident", 29, 2, 30, 1))
sketch5.addConstraint(Sketcher.Constraint("Coincident", 30, 2, 27, 1))
sketch5.addConstraint(Sketcher.Constraint("Vertical", 27))
sketch5.addConstraint(Sketcher.Constraint("Horizontal", 28))
sketch5.addConstraint(Sketcher.Constraint("Vertical", 29))
sketch5.addConstraint(Sketcher.Constraint("Horizontal", 30))
sketch5.addConstraint(Sketcher.Constraint("Equal", 0, 1))
sketch5.addConstraint(Sketcher.Constraint("Equal", 1, 2))
sketch5.addConstraint(Sketcher.Constraint("Equal", 2, 3))
sketch5.addConstraint(Sketcher.Constraint("Equal", 3, 4))
sketch5.addConstraint(Sketcher.Constraint("Equal", 4, 5))
sketch5.addConstraint(Sketcher.Constraint("Equal", 5, 6))
sketch5.addConstraint(Sketcher.Constraint("Equal", 6, 7))
sketch5.addConstraint(Sketcher.Constraint("Equal", 7, 8))
sketch5.addConstraint(Sketcher.Constraint("Equal", 8, 9))
sketch5.addConstraint(Sketcher.Constraint("Equal", 9, 10))
sketch5.addConstraint(Sketcher.Constraint("Equal", 10, 11))
sketch5.addConstraint(Sketcher.Constraint("Equal", 11, 12))
sketch5.addConstraint(Sketcher.Constraint("Equal", 12, 13))
sketch5.addConstraint(Sketcher.Constraint("Equal", 13, 14))
sketch5.addConstraint(Sketcher.Constraint("Equal", 14, 15))
sketch5.addConstraint(Sketcher.Constraint("Equal", 15, 16))
sketch5.addConstraint(Sketcher.Constraint("Equal", 16, 17))
sketch5.addConstraint(Sketcher.Constraint("Equal", 17, 18))
sketch5.addConstraint(Sketcher.Constraint("Equal", 18, 19))
sketch5.addConstraint(Sketcher.Constraint("Equal", 19, 20))
sketch5.addConstraint(Sketcher.Constraint("Equal", 20, 21))
sketch5.addConstraint(Sketcher.Constraint("Equal", 21, 23))
sketch5.addConstraint(Sketcher.Constraint("Equal", 23, 24))
sketch5.addConstraint(Sketcher.Constraint("Equal", 24, 25))
sketch5.addConstraint(Sketcher.Constraint("Equal", 25, 26))
sketch5.addConstraint(Sketcher.Constraint("PointOnObject", 27, 2, -1))
sketch5.addConstraint(Sketcher.Constraint("Horizontal", 3, 3, 4, 3))
sketch5.addConstraint(Sketcher.Constraint("Horizontal", 2, 3, 12, 3))
sketch5.addConstraint(Sketcher.Constraint("Horizontal", 12, 3, 13, 3))
sketch5.addConstraint(Sketcher.Constraint("Horizontal", 13, 3, 14, 3))
sketch5.addConstraint(Sketcher.Constraint("Horizontal", 14, 3, 15, 3))
sketch5.addConstraint(Sketcher.Constraint("Horizontal", 15, 3, 16, 3))
sketch5.addConstraint(Sketcher.Constraint("Horizontal", 16, 3, 17, 3))
sketch5.addConstraint(Sketcher.Constraint("Horizontal", 20, 3, 21, 3))
sketch5.addConstraint(Sketcher.Constraint("Vertical", 5, 3, 6, 3))
sketch5.addConstraint(Sketcher.Constraint("Vertical", 7, 3, 8, 3))
sketch5.addConstraint(Sketcher.Constraint("Vertical", 8, 3, 9, 3))
sketch5.addConstraint(Sketcher.Constraint("Vertical", 9, 3, 10, 3))
sketch5.addConstraint(Sketcher.Constraint("Vertical", 10, 3, 11, 3))
sketch5.addConstraint(Sketcher.Constraint("Vertical", 18, 3, 19, 3))
sketch5.addConstraint(Sketcher.Constraint("Vertical", 22, 3, 23, 3))
sketch5.addConstraint(Sketcher.Constraint("Vertical", 23, 3, 24, 3))
sketch5.addConstraint(Sketcher.Constraint("Vertical", 24, 3, 25, 3))
sketch5.addConstraint(Sketcher.Constraint("Vertical", 0, 3, 26, 3))
sketch5.addConstraint(Sketcher.Constraint("Diameter", 0, Q("3 mm")))
sketch5.addConstraint(Sketcher.Constraint("Diameter", 22, Q("3.01 mm")))
sketch5.addConstraint(Sketcher.Constraint("DistanceX", 28, 2, 28, 1, Q("10 mm")))
sketch5.addConstraint(Sketcher.Constraint("DistanceY", 27, 2, 27, 1, Q("15 mm")))
sketch5.addConstraint(Sketcher.Constraint("DistanceX", 0, 3, -1, 1, Q("337 mm")))
sketch5.addConstraint(Sketcher.Constraint("DistanceY", -1, 1, 0, 3, Q("50 mm")))
sketch5.addConstraint(Sketcher.Constraint("DistanceY", -1, 1, 1, 3, Q("140 mm")))
sketch5.addConstraint(Sketcher.Constraint("DistanceX", 2, 3, -1, 1, Q("42 mm")))
sketch5.addConstraint(Sketcher.Constraint("DistanceY", -1, 1, 2, 3, Q("162 mm")))
sketch5.addConstraint(Sketcher.Constraint("DistanceX", 3, 3, -1, 1, Q("293 mm")))
sketch5.addConstraint(Sketcher.Constraint("DistanceX", 4, 3, -1, 1, Q("327 mm")))
sketch5.addConstraint(Sketcher.Constraint("DistanceX", 7, 3, -1, 1, Q("241 mm")))
sketch5.addConstraint(Sketcher.Constraint("DistanceY", -1, 1, 7, 3, Q("39 mm")))
sketch5.addConstraint(Sketcher.Constraint("DistanceY", -1, 1, 8, 3, Q("79 mm")))
sketch5.addConstraint(Sketcher.Constraint("DistanceY", -1, 1, 9, 3, Q("99 mm")))
sketch5.addConstraint(Sketcher.Constraint("DistanceY", -1, 1, 10, 3, Q("139 mm")))
sketch5.addConstraint(Sketcher.Constraint("DistanceY", -1, 1, 11, 3, Q("7 mm")))
sketch5.addConstraint(Sketcher.Constraint("DistanceX", 12, 3, -1, 1, Q("57 mm")))
sketch5.addConstraint(Sketcher.Constraint("DistanceX", 13, 3, -1, 1, Q("262 mm")))
sketch5.addConstraint(Sketcher.Constraint("DistanceX", 14, 3, -1, 1, Q("214 mm")))
sketch5.addConstraint(Sketcher.Constraint("DistanceX", 15, 3, -1, 1, Q("111 mm")))
sketch5.addConstraint(Sketcher.Constraint("DistanceX", 16, 3, -1, 1, Q("138 mm")))
sketch5.addConstraint(Sketcher.Constraint("DistanceX", 17, 3, -1, 1, Q("129 mm")))
sketch5.addConstraint(Sketcher.Constraint("DistanceX", 18, 3, -1, 1, Q("67 mm")))
sketch5.addConstraint(Sketcher.Constraint("DistanceY", -1, 1, 18, 3, Q("85 mm")))
sketch5.addConstraint(Sketcher.Constraint("DistanceY", -1, 1, 19, 3, Q("119 mm")))
sketch5.addConstraint(Sketcher.Constraint("DistanceX", 20, 3, -1, 1, Q("53 mm")))
sketch5.addConstraint(Sketcher.Constraint("DistanceY", -1, 1, 20, 3, Q("58 mm")))
sketch5.addConstraint(Sketcher.Constraint("DistanceX", 21, 3, -1, 1, Q("19 mm")))
sketch5.addConstraint(Sketcher.Constraint("DistanceX", 22, 3, -1, 1, Q("3 mm")))
sketch5.addConstraint(Sketcher.Constraint("DistanceY", -1, 1, 22, 3, Q("32 mm")))
sketch5.addConstraint(Sketcher.Constraint("DistanceY", -1, 1, 23, 3, Q("48 mm")))
sketch5.addConstraint(Sketcher.Constraint("DistanceY", -1, 1, 24, 3, Q("112 mm")))
sketch5.addConstraint(Sketcher.Constraint("DistanceY", -1, 1, 25, 3, Q("128 mm")))
sketch5.addConstraint(Sketcher.Constraint("DistanceY", -1, 1, 26, 3, Q("110 mm")))
sketch5.addConstraint(Sketcher.Constraint("DistanceX", 27, 2, -1, 1, Q("324 mm")))
sketch5.addConstraint(Sketcher.Constraint("DistanceY", 3, 3, 5, 3, Q("22 mm")))
sketch5.addConstraint(Sketcher.Constraint("DistanceX", 1, 3, 5, 3, Q("31 mm")))
sketch5.addConstraint(Sketcher.Constraint("DistanceY", 5, 3, 6, 3, Q("34 mm")))
sketch5.addConstraint(Sketcher.Constraint("DistanceX", 1, 3, -1, 1, Q("319.5 mm")))
sketch5.addConstraint(Sketcher.Constraint("DistanceY", -1, 1, 3, 3, Q("48.5 mm")))
pocket4 = doc.addObject("PartDesign::Pocket", "Pocket003")
body.addObject(pocket4)
pocket4.Profile = sketch5
pocket4.Type = "ThroughAll"
pocket4.Reversed = True

# Sketch on XY plane
sketch6 = doc.addObject("Sketcher::SketchObject", "Sketch005")
body.addObject(sketch6)
sketch6.AttachmentSupport = (doc.XY_Plane, [""])
sketch6.MapMode = "FlatFace"
sketch6.addGeometry(Part.Circle(App.Vector(-3, 32, 0), App.Vector(0, 0, 1), 3), False)
sketch6.addGeometry(Part.Circle(App.Vector(-3, 48, 0), App.Vector(0, 0, 1), 3), False)
sketch6.addGeometry(Part.Circle(App.Vector(-19, 58, 0), App.Vector(0, 0, 1), 3), False)
sketch6.addGeometry(Part.Circle(App.Vector(-3, 112, 0), App.Vector(0, 0, 1), 3), False)
sketch6.addGeometry(Part.Circle(App.Vector(-3, 128, 0), App.Vector(0, 0, 1), 3), False)
sketch6.addGeometry(Part.Circle(App.Vector(-53, 58, 0), App.Vector(0, 0, 1), 3), False)
sketch6.addGeometry(Part.Circle(App.Vector(-67, 85, 0), App.Vector(0, 0, 1), 3), False)
sketch6.addGeometry(Part.Circle(App.Vector(-67, 119, 0), App.Vector(0, 0, 1), 3), False)
sketch6.addGeometry(Part.Circle(App.Vector(-111, 162, 0), App.Vector(0, 0, 1), 3), False)
sketch6.addGeometry(Part.Circle(App.Vector(-42, 162, 0), App.Vector(0, 0, 1), 3), False)
sketch6.addGeometry(Part.Circle(App.Vector(-129, 162, 0), App.Vector(0, 0, 1), 3), False)
sketch6.addGeometry(Part.Circle(App.Vector(-151.5, 136, 0), App.Vector(0, 0, 1), 3), False)
sketch6.addGeometry(Part.Circle(App.Vector(-151.5, 24, 0), App.Vector(0, 0, 1), 3), False)
sketch6.addGeometry(Part.Circle(App.Vector(-214, 162, 0), App.Vector(0, 0, 1), 3), False)
sketch6.addGeometry(Part.Circle(App.Vector(-57, 162, 0), App.Vector(0, 0, 1), 3), False)
sketch6.addGeometry(Part.Circle(App.Vector(-262, 162, 0), App.Vector(0, 0, 1), 3), False)
sketch6.addGeometry(Part.Circle(App.Vector(-241, 139, 0), App.Vector(0, 0, 1), 3), False)
sketch6.addGeometry(Part.Circle(App.Vector(-241, 99, 0), App.Vector(0, 0, 1), 3), False)
sketch6.addGeometry(Part.Circle(App.Vector(-241, 79, 0), App.Vector(0, 0, 1), 3), False)
sketch6.addGeometry(Part.Circle(App.Vector(-241, 39, 0), App.Vector(0, 0, 1), 3), False)
sketch6.addGeometry(Part.Circle(App.Vector(-241, 7, 0), App.Vector(0, 0, 1), 3), False)
sketch6.addGeometry(Part.Circle(App.Vector(-337, 50, 0), App.Vector(0, 0, 1), 3), False)
sketch6.addGeometry(Part.Circle(App.Vector(-327, 48.5, 0), App.Vector(0, 0, 1), 3), False)
sketch6.addGeometry(Part.Circle(App.Vector(-293, 48.5, 0), App.Vector(0, 0, 1), 3), False)
sketch6.addGeometry(Part.Circle(App.Vector(-288.5, 70.5, 0), App.Vector(0, 0, 1), 3), False)
sketch6.addGeometry(Part.Circle(App.Vector(-288.5, 104.5, 0), App.Vector(0, 0, 1), 3), False)
sketch6.addGeometry(Part.Circle(App.Vector(-319.5, 140, 0), App.Vector(0, 0, 1), 3), False)
sketch6.addGeometry(Part.Circle(App.Vector(-337, 110, 0), App.Vector(0, 0, 1), 3), False)
sketch6.addConstraint(Sketcher.Constraint("Equal", 0, 1))
sketch6.addConstraint(Sketcher.Constraint("Equal", 1, 3))
sketch6.addConstraint(Sketcher.Constraint("Equal", 3, 4))
sketch6.addConstraint(Sketcher.Constraint("Equal", 2, 5))
sketch6.addConstraint(Sketcher.Constraint("Equal", 5, 6))
sketch6.addConstraint(Sketcher.Constraint("Equal", 6, 7))
sketch6.addConstraint(Sketcher.Constraint("Equal", 4, 8))
sketch6.addConstraint(Sketcher.Constraint("Equal", 8, 9))
sketch6.addConstraint(Sketcher.Constraint("Equal", 9, 10))
sketch6.addConstraint(Sketcher.Constraint("Equal", 7, 11))
sketch6.addConstraint(Sketcher.Constraint("Equal", 11, 12))
sketch6.addConstraint(Sketcher.Constraint("Equal", 10, 13))
sketch6.addConstraint(Sketcher.Constraint("Equal", 13, 14))
sketch6.addConstraint(Sketcher.Constraint("Equal", 14, 15))
sketch6.addConstraint(Sketcher.Constraint("Equal", 12, 16))
sketch6.addConstraint(Sketcher.Constraint("Equal", 16, 17))
sketch6.addConstraint(Sketcher.Constraint("Equal", 17, 18))
sketch6.addConstraint(Sketcher.Constraint("Equal", 18, 19))
sketch6.addConstraint(Sketcher.Constraint("Equal", 19, 20))
sketch6.addConstraint(Sketcher.Constraint("Equal", 15, 21))
sketch6.addConstraint(Sketcher.Constraint("Equal", 20, 22))
sketch6.addConstraint(Sketcher.Constraint("Equal", 22, 23))
sketch6.addConstraint(Sketcher.Constraint("Equal", 23, 24))
sketch6.addConstraint(Sketcher.Constraint("Equal", 24, 25))
sketch6.addConstraint(Sketcher.Constraint("Equal", 21, 26))
sketch6.addConstraint(Sketcher.Constraint("Equal", 26, 27))
sketch6.addConstraint(Sketcher.Constraint("Horizontal", 2, 3, 5, 3))
sketch6.addConstraint(Sketcher.Constraint("Horizontal", 8, 3, 9, 3))
sketch6.addConstraint(Sketcher.Constraint("Horizontal", 9, 3, 10, 3))
sketch6.addConstraint(Sketcher.Constraint("Horizontal", 10, 3, 13, 3))
sketch6.addConstraint(Sketcher.Constraint("Horizontal", 13, 3, 14, 3))
sketch6.addConstraint(Sketcher.Constraint("Horizontal", 14, 3, 15, 3))
sketch6.addConstraint(Sketcher.Constraint("Horizontal", 22, 3, 23, 3))
sketch6.addConstraint(Sketcher.Constraint("Vertical", 0, 3, 1, 3))
sketch6.addConstraint(Sketcher.Constraint("Vertical", 1, 3, 3, 3))
sketch6.addConstraint(Sketcher.Constraint("Vertical", 3, 3, 4, 3))
sketch6.addConstraint(Sketcher.Constraint("Vertical", 6, 3, 7, 3))
sketch6.addConstraint(Sketcher.Constraint("Vertical", 11, 3, 12, 3))
sketch6.addConstraint(Sketcher.Constraint("Vertical", 16, 3, 17, 3))
sketch6.addConstraint(Sketcher.Constraint("Vertical", 17, 3, 18, 3))
sketch6.addConstraint(Sketcher.Constraint("Vertical", 18, 3, 19, 3))
sketch6.addConstraint(Sketcher.Constraint("Vertical", 19, 3, 20, 3))
sketch6.addConstraint(Sketcher.Constraint("Vertical", 24, 3, 25, 3))
sketch6.addConstraint(Sketcher.Constraint("Vertical", 21, 3, 27, 3))
sketch6.addConstraint(Sketcher.Constraint("Diameter", 2, Q("6 mm")))
sketch6.addConstraint(Sketcher.Constraint("Diameter", 0, Q("5.99 mm")))
sketch6.addConstraint(Sketcher.Constraint("DistanceX", 0, 3, -1, 1, Q("3 mm")))
sketch6.addConstraint(Sketcher.Constraint("DistanceY", -1, 1, 0, 3, Q("32 mm")))
sketch6.addConstraint(Sketcher.Constraint("DistanceY", -1, 1, 1, 3, Q("48 mm")))
sketch6.addConstraint(Sketcher.Constraint("DistanceX", 2, 3, -1, 1, Q("19 mm")))
sketch6.addConstraint(Sketcher.Constraint("DistanceY", -1, 1, 2, 3, Q("58 mm")))
sketch6.addConstraint(Sketcher.Constraint("DistanceY", -1, 1, 3, 3, Q("112 mm")))
sketch6.addConstraint(Sketcher.Constraint("DistanceY", -1, 1, 4, 3, Q("128 mm")))
sketch6.addConstraint(Sketcher.Constraint("DistanceX", 5, 3, -1, 1, Q("53 mm")))
sketch6.addConstraint(Sketcher.Constraint("DistanceX", 6, 3, -1, 1, Q("67 mm")))
sketch6.addConstraint(Sketcher.Constraint("DistanceY", -1, 1, 6, 3, Q("85 mm")))
sketch6.addConstraint(Sketcher.Constraint("DistanceY", -1, 1, 7, 3, Q("119 mm")))
sketch6.addConstraint(Sketcher.Constraint("DistanceX", 8, 3, -1, 1, Q("111 mm")))
sketch6.addConstraint(Sketcher.Constraint("DistanceY", -1, 1, 8, 3, Q("162 mm")))
sketch6.addConstraint(Sketcher.Constraint("DistanceX", 9, 3, -1, 1, Q("42 mm")))
sketch6.addConstraint(Sketcher.Constraint("DistanceX", 10, 3, -1, 1, Q("129 mm")))
sketch6.addConstraint(Sketcher.Constraint("DistanceY", -1, 1, 11, 3, Q("136 mm")))
sketch6.addConstraint(Sketcher.Constraint("DistanceY", -1, 1, 12, 3, Q("24 mm")))
sketch6.addConstraint(Sketcher.Constraint("DistanceX", 13, 3, -1, 1, Q("214 mm")))
sketch6.addConstraint(Sketcher.Constraint("DistanceX", 14, 3, -1, 1, Q("57 mm")))
sketch6.addConstraint(Sketcher.Constraint("DistanceX", 15, 3, -1, 1, Q("262 mm")))
sketch6.addConstraint(Sketcher.Constraint("DistanceX", 16, 3, -1, 1, Q("241 mm")))
sketch6.addConstraint(Sketcher.Constraint("DistanceY", -1, 1, 16, 3, Q("139 mm")))
sketch6.addConstraint(Sketcher.Constraint("DistanceY", -1, 1, 17, 3, Q("99 mm")))
sketch6.addConstraint(Sketcher.Constraint("DistanceY", -1, 1, 18, 3, Q("79 mm")))
sketch6.addConstraint(Sketcher.Constraint("DistanceY", -1, 1, 19, 3, Q("39 mm")))
sketch6.addConstraint(Sketcher.Constraint("DistanceY", -1, 1, 20, 3, Q("7 mm")))
sketch6.addConstraint(Sketcher.Constraint("DistanceX", 21, 3, -1, 1, Q("337 mm")))
sketch6.addConstraint(Sketcher.Constraint("DistanceY", -1, 1, 21, 3, Q("50 mm")))
sketch6.addConstraint(Sketcher.Constraint("DistanceX", 22, 3, -1, 1, Q("327 mm")))
sketch6.addConstraint(Sketcher.Constraint("DistanceX", 23, 3, -1, 1, Q("293 mm")))
sketch6.addConstraint(Sketcher.Constraint("DistanceY", -1, 1, 26, 3, Q("140 mm")))
sketch6.addConstraint(Sketcher.Constraint("DistanceY", -1, 1, 27, 3, Q("110 mm")))
sketch6.addConstraint(Sketcher.Constraint("DistanceY", 23, 3, 24, 3, Q("22 mm")))
sketch6.addConstraint(Sketcher.Constraint("DistanceY", 24, 3, 25, 3, Q("34 mm")))
sketch6.addConstraint(Sketcher.Constraint("DistanceX", 26, 3, 25, 3, Q("31 mm")))
sketch6.addConstraint(Sketcher.Constraint("DistanceX", 11, 3, -1, 1, Q("151.5 mm")))
sketch6.addConstraint(Sketcher.Constraint("DistanceY", -1, 1, 22, 3, Q("48.5 mm")))
sketch6.addConstraint(Sketcher.Constraint("DistanceX", 24, 3, -1, 1, Q("288.5 mm")))
pocket5 = doc.addObject("PartDesign::Pocket", "Pocket004")
body.addObject(pocket5)
pocket5.Profile = sketch6
pocket5.Length = 3
pocket5.Reversed = True

doc.recompute()
